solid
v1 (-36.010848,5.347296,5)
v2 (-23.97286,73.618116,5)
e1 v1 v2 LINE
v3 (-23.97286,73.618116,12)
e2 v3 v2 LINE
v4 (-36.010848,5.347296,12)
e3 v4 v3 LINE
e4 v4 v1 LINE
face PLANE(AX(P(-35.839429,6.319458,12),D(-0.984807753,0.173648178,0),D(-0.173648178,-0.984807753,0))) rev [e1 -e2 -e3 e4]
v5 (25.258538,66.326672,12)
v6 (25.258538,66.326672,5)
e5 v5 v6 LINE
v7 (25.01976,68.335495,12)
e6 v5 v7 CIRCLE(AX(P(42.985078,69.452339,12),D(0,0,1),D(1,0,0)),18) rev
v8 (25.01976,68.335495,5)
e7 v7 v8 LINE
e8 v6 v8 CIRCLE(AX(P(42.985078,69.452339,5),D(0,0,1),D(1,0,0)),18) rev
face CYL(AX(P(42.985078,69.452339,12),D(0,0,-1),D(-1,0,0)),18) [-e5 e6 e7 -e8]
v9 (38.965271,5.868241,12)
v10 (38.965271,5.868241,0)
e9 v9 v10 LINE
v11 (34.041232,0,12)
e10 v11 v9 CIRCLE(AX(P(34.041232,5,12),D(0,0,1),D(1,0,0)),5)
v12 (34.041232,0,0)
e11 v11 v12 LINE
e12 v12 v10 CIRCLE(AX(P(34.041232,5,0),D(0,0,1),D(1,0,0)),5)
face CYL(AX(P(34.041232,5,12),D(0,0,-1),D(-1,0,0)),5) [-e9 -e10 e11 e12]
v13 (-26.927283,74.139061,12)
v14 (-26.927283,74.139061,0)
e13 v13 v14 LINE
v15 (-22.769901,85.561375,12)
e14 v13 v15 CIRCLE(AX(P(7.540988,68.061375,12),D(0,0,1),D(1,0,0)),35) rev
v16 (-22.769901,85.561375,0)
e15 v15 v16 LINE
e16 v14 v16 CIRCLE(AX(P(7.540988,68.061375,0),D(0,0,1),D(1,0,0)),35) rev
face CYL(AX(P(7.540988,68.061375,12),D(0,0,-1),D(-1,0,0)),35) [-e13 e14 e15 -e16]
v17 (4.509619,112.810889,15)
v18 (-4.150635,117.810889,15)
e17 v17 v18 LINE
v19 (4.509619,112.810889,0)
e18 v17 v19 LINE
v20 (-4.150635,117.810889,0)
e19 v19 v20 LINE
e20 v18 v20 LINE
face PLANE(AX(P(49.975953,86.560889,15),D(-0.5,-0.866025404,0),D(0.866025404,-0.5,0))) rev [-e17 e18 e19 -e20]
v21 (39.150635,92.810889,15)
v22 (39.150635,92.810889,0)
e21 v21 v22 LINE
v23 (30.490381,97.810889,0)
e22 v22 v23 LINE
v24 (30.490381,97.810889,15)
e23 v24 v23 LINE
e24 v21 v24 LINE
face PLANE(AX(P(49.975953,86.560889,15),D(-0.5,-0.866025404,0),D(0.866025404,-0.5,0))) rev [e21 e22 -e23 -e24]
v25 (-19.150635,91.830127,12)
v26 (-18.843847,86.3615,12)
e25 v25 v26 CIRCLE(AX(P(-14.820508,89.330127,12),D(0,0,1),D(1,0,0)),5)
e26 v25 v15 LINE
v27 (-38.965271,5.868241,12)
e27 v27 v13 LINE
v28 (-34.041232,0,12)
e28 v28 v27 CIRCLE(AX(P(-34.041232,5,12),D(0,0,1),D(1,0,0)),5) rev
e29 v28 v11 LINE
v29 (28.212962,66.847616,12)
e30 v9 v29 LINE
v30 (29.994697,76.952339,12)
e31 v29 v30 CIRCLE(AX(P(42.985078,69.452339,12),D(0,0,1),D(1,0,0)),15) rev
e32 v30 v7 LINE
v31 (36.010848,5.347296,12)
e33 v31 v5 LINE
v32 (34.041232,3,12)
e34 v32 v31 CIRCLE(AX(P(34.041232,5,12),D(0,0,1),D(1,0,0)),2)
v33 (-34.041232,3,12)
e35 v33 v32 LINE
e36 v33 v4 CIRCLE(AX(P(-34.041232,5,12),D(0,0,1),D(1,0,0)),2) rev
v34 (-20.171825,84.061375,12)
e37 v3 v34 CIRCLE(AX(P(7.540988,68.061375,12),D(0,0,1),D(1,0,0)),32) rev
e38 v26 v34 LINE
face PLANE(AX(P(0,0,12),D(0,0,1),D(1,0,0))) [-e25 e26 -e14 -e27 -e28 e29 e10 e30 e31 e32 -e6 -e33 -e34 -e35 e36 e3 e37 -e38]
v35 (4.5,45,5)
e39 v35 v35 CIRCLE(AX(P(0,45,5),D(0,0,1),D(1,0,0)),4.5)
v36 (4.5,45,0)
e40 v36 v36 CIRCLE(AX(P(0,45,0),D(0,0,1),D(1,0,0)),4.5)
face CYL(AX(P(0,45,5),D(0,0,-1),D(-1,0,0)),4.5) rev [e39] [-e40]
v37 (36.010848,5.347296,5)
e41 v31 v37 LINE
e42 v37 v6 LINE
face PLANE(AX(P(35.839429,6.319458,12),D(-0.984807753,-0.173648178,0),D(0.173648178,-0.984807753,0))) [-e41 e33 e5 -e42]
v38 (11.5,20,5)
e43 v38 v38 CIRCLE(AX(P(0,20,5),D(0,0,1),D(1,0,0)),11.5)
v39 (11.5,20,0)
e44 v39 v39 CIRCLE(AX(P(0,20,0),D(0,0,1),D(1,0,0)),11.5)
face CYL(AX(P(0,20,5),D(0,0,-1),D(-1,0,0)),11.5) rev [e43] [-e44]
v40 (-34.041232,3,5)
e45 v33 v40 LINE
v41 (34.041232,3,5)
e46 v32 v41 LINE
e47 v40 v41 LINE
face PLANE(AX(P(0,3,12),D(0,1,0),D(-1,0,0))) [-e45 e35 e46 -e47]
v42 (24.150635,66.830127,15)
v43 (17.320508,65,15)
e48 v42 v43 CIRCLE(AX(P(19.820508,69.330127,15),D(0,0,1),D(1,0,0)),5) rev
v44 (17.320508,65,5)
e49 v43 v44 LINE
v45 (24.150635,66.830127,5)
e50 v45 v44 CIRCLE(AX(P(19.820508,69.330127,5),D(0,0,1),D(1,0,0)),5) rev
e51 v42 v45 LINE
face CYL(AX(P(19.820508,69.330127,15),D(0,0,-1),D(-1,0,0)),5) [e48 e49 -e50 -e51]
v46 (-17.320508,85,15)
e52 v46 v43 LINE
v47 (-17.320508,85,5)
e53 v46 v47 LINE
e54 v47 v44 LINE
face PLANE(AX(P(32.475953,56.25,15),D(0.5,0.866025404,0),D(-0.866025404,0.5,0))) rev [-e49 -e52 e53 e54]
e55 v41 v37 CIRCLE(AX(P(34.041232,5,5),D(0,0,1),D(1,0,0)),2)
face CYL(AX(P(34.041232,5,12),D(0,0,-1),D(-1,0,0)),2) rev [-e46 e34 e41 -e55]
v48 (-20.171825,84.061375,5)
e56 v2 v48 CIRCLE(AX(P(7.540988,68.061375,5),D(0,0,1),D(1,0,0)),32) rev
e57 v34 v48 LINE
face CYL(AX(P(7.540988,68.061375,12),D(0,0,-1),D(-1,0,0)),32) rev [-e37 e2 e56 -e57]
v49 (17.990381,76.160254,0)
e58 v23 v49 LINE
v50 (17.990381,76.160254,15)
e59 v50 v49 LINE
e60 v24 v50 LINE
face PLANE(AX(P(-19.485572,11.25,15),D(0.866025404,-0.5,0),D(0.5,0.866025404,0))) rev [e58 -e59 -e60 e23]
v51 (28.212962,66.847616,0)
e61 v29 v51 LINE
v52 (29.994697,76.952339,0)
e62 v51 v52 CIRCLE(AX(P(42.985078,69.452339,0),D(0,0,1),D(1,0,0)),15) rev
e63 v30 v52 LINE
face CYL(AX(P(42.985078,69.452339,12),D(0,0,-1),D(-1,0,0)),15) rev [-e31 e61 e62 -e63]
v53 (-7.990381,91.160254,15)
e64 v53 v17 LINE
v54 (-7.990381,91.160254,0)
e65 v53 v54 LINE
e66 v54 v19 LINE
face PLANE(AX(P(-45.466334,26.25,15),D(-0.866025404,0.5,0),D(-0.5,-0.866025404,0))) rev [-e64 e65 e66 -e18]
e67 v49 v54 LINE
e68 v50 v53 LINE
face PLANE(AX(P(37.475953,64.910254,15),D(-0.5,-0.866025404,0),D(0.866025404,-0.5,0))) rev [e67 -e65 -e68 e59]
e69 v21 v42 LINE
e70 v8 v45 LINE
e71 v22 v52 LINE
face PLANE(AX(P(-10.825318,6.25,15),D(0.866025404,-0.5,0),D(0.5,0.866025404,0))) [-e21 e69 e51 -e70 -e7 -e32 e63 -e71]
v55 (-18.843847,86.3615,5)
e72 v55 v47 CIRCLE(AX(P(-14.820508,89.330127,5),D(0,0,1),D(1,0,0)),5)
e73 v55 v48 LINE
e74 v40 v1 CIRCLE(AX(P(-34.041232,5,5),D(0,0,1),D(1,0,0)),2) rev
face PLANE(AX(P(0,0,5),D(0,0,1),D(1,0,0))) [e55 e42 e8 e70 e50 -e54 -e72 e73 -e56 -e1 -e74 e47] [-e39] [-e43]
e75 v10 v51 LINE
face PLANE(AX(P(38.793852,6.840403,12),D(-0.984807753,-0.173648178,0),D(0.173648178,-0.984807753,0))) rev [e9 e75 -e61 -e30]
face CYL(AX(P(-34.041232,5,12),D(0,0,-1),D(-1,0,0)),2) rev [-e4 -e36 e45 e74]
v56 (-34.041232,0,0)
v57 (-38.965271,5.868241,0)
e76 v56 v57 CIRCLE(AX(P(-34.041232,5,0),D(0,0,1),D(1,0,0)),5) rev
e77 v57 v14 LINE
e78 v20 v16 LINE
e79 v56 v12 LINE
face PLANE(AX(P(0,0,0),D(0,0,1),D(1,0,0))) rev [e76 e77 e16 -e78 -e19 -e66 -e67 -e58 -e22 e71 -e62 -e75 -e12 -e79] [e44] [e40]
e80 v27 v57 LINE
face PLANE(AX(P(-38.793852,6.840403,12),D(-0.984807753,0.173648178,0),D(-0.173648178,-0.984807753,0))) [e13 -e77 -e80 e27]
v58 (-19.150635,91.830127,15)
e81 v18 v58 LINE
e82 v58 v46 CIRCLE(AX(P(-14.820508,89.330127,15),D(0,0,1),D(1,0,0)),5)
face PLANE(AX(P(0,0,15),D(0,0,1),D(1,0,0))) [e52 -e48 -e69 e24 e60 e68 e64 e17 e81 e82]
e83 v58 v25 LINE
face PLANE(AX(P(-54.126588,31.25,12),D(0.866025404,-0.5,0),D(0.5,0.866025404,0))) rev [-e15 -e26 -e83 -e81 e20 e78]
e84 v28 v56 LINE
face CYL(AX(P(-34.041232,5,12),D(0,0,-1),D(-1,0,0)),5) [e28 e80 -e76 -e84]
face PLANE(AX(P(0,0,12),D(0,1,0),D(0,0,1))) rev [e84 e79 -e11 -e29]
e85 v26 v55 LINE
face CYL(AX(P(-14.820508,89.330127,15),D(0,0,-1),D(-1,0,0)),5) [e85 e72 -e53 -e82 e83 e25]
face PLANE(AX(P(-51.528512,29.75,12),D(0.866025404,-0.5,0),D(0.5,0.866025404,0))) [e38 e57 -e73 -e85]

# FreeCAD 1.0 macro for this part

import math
import FreeCAD as App
import Part
import Sketcher
Q = App.Units.Quantity

doc = App.newDocument("Part")
body = doc.addObject("PartDesign::Body", "Body")

# Sketch on XY plane
sketch1 = doc.addObject("Sketcher::SketchObject", "Sketch")
body.addObject(sketch1)
sketch1.AttachmentSupport = (doc.XY_Plane, [""])
sketch1.MapMode = "FlatFace"
sketch1.addGeometry([
    Part.ArcOfCircle(Part.Circle(App.Vector(-34.041232, 5, 0), App.Vector(0, 0, 1), 5), math.radians(170), math.radians(270)),  # 0
    Part.LineSegment(App.Vector(-34.041232, 0, 0), App.Vector(34.041232, 0, 0)),  # 1
    Part.ArcOfCircle(Part.Circle(App.Vector(34.041232, 5, 0), App.Vector(0, 0, 1), 5), math.radians(-90), math.radians(10)),  # 2
    Part.LineSegment(App.Vector(38.965271, 5.868241, 0), App.Vector(28.212962, 66.847616, 0)),  # 3
    Part.ArcOfCircle(Part.Circle(App.Vector(42.985078, 69.452339, 0), App.Vector(0, 0, 1), 15), math.radians(150), math.radians(190)),  # 4
    Part.LineSegment(App.Vector(29.994697, 76.952339, 0), App.Vector(25.01976, 68.335495, 0)),  # 5
    Part.ArcOfCircle(Part.Circle(App.Vector(42.985078, 69.452339, 0), App.Vector(0, 0, 1), 18), math.radians(-176.44269), math.radians(-170)),  # 6
    Part.LineSegment(App.Vector(25.258538, 66.326672, 0), App.Vector(36.010848, 5.347296, 0)),  # 7
    Part.ArcOfCircle(Part.Circle(App.Vector(34.041232, 5, 0), App.Vector(0, 0, 1), 2), math.radians(-90), math.radians(10)),  # 8
    Part.LineSegment(App.Vector(34.041232, 3, 0), App.Vector(-34.041232, 3, 0)),  # 9
    Part.ArcOfCircle(Part.Circle(App.Vector(-34.041232, 5, 0), App.Vector(0, 0, 1), 2), math.radians(170), math.radians(270)),  # 10
    Part.LineSegment(App.Vector(-36.010848, 5.347296, 0), App.Vector(-23.97286, 73.618116, 0)),  # 11
    Part.ArcOfCircle(Part.Circle(App.Vector(7.540988, 68.061374, 0), App.Vector(0, 0, 1), 32), math.radians(150), math.radians(170)),  # 12
    Part.LineSegment(App.Vector(-20.171825, 84.061375, 0), App.Vector(-18.843847, 86.3615, 0)),  # 13
    Part.ArcOfCircle(Part.Circle(App.Vector(-14.820508, 89.330127, 0), App.Vector(0, 0, 1), 5), math.radians(150), math.radians(216.421822)),  # 14
    Part.LineSegment(App.Vector(-19.150635, 91.830127, 0), App.Vector(-22.769901, 85.561375, 0)),  # 15
    Part.ArcOfCircle(Part.Circle(App.Vector(7.540988, 68.061375, 0), App.Vector(0, 0, 1), 35), math.radians(150), math.radians(170)),  # 16
    Part.LineSegment(App.Vector(-26.927283, 74.139061, 0), App.Vector(-38.965271, 5.868241, 0)),  # 17
], False)
sketch1.addConstraint([
    Sketcher.Constraint("Tangent", 0, 2, 1, 1),
    Sketcher.Constraint("Tangent", 1, 2, 2, 1),
    Sketcher.Constraint("Tangent", 2, 2, 3, 1),
    Sketcher.Constraint("Tangent", 3, 2, 4, 2),
    Sketcher.Constraint("Tangent", 4, 1, 5, 1),
    Sketcher.Constraint("Coincident", 5, 2, 6, 1),
    Sketcher.Constraint("Tangent", 6, 2, 7, 1),
    Sketcher.Constraint("Tangent", 7, 2, 8, 2),
    Sketcher.Constraint("Tangent", 8, 1, 9, 1),
    Sketcher.Constraint("Tangent", 9, 2, 10, 2),
    Sketcher.Constraint("Tangent", 10, 1, 11, 1),
    Sketcher.Constraint("Tangent", 11, 2, 12, 2),
    Sketcher.Constraint("Tangent", 12, 1, 13, 1),
    Sketcher.Constraint("Coincident", 13, 2, 14, 2),
    Sketcher.Constraint("Tangent", 14, 1, 15, 1),
    Sketcher.Constraint("Tangent", 15, 2, 16, 1),
    Sketcher.Constraint("Tangent", 16, 2, 17, 1),
    Sketcher.Constraint("Tangent", 17, 2, 0, 1),
    Sketcher.Constraint("Horizontal", 1),
    Sketcher.Constraint("Horizontal", 9),
    Sketcher.Constraint("Coincident", 6, 3, 4, 3),
    Sketcher.Constraint("Coincident", 8, 3, 2, 3),
    Sketcher.Constraint("Coincident", 10, 3, 0, 3),
    Sketcher.Constraint("Coincident", 16, 3, 12, 3),
    Sketcher.Constraint("Equal", 0, 2),
    Sketcher.Constraint("Equal", 2, 14),
    Sketcher.Constraint("Symmetric", 0, 2, 1, 2, -1, 1),
    Sketcher.Constraint("Parallel", 3, 7),
    Sketcher.Constraint("Parallel", 5, 13),
    Sketcher.Constraint("Parallel", 13, 15),
    Sketcher.Constraint("Parallel", 11, 17),
    Sketcher.Constraint("Horizontal", 7, 2, 10, 1),
    Sketcher.Constraint("Radius", 0, Q("5 mm")),
    Sketcher.Constraint("Radius", 4, Q("15 mm")),
    Sketcher.Constraint("Radius", 6, Q("18 mm")),
    Sketcher.Constraint("Radius", 12, Q("32 mm")),
    Sketcher.Constraint("Angle", 3, Q("100 deg")),
    Sketcher.Constraint("Angle", 5, Q("-120 deg")),
    Sketcher.Constraint("DistanceY", -1, 1, 13, 2, Q("86.3615 mm")),
    Sketcher.Constraint("DistanceX", 15, 2, -1, 1, Q("22.769901 mm")),
    Sketcher.Constraint("DistanceY", 2, 2, 6, 3, Q("63.584098 mm")),
    Sketcher.Constraint("DistanceX", 11, 2, 6, 2, Q("49.231398 mm")),
])
pad1 = doc.addObject("PartDesign::Pad", "Pad")
body.addObject(pad1)
pad1.Profile = sketch1
pad1.Length = 12

# Sketch on XY plane
sketch2 = doc.addObject("Sketcher::SketchObject", "Sketch001")
body.addObject(sketch2)
sketch2.AttachmentSupport = (doc.XY_Plane, [""])
sketch2.MapMode = "FlatFace"
sketch2.addGeometry([
    Part.ArcOfCircle(Part.Circle(App.Vector(42.985078, 69.452339, 0), App.Vector(0, 0, 1), 18), math.radians(-176.44269), math.radians(-170)),  # 0
    Part.LineSegment(App.Vector(25.01976, 68.335495, 0), App.Vector(24.150635, 66.830127, 0)),  # 1
    Part.ArcOfCircle(Part.Circle(App.Vector(19.820508, 69.330127, 0), App.Vector(0, 0, 1), 5), math.radians(-120), math.radians(-30)),  # 2
    Part.LineSegment(App.Vector(17.320508, 65, 0), App.Vector(-17.320508, 85, 0)),  # 3
    Part.ArcOfCircle(Part.Circle(App.Vector(-14.820508, 89.330127, 0), App.Vector(0, 0, 1), 5), math.radians(-143.578178), math.radians(-120)),  # 4
    Part.LineSegment(App.Vector(-18.843847, 86.3615, 0), App.Vector(-20.171825, 84.061375, 0)),  # 5
    Part.ArcOfCircle(Part.Circle(App.Vector(7.540988, 68.061374, 0), App.Vector(0, 0, 1), 32), math.radians(150), math.radians(170)),  # 6
    Part.LineSegment(App.Vector(-23.97286, 73.618116, 0), App.Vector(-36.010848, 5.347296, 0)),  # 7
    Part.ArcOfCircle(Part.Circle(App.Vector(-34.041232, 5, 0), App.Vector(0, 0, 1), 2), math.radians(170), math.radians(270)),  # 8
    Part.LineSegment(App.Vector(-34.041232, 3, 0), App.Vector(34.041232, 3, 0)),  # 9
    Part.ArcOfCircle(Part.Circle(App.Vector(34.041232, 5, 0), App.Vector(0, 0, 1), 2), math.radians(-90), math.radians(10)),  # 10
    Part.LineSegment(App.Vector(36.010848, 5.347296, 0), App.Vector(25.258538, 66.326672, 0)),  # 11
    Part.Circle(App.Vector(0, 20, 0), App.Vector(0, 0, 1), 11.5),  # 12
    Part.Circle(App.Vector(0, 45, 0), App.Vector(0, 0, 1), 4.5),  # 13
], False)
sketch2.addConstraint([
    Sketcher.Constraint("Coincident", 0, 1, 1, 1),
    Sketcher.Constraint("Tangent", 1, 2, 2, 2),
    Sketcher.Constraint("Tangent", 2, 1, 3, 1),
    Sketcher.Constraint("Tangent", 3, 2, 4, 2),
    Sketcher.Constraint("Coincident", 4, 1, 5, 1),
    Sketcher.Constraint("Tangent", 5, 2, 6, 1),
    Sketcher.Constraint("Tangent", 6, 2, 7, 1),
    Sketcher.Constraint("Tangent", 7, 2, 8, 1),
    Sketcher.Constraint("Tangent", 8, 2, 9, 1),
    Sketcher.Constraint("Tangent", 9, 2, 10, 1),
    Sketcher.Constraint("Tangent", 10, 2, 11, 1),
    Sketcher.Constraint("Tangent", 11, 2, 0, 2),
    Sketcher.Constraint("Horizontal", 9),
    Sketcher.Constraint("Equal", 2, 4),
    Sketcher.Constraint("Equal", 8, 10),
    Sketcher.Constraint("Symmetric", 7, 2, 10, 2, -2),
    Sketcher.Constraint("PointOnObject", 12, 3, -2),
    Sketcher.Constraint("PointOnObject", 13, 3, -2),
    Sketcher.Constraint("Perpendicular", 1, 3),
    Sketcher.Constraint("Perpendicular", 3, 5),
    Sketcher.Constraint("Diameter", 12, Q("23 mm")),
    Sketcher.Constraint("Diameter", 13, Q("9 mm")),
    Sketcher.Constraint("Radius", 0, Q("18 mm")),
    Sketcher.Constraint("Radius", 2, Q("5 mm")),
    Sketcher.Constraint("Radius", 6, Q("32 mm")),
    Sketcher.Constraint("Radius", 8, Q("2 mm")),
    Sketcher.Constraint("Angle", 1, Q("-120 deg")),
    Sketcher.Constraint("Angle", 7, Q("-100 deg")),
    Sketcher.Constraint("Distance", 3, Q("40 mm")),
    Sketcher.Constraint("DistanceY", -1, 1, 8, 3, Q("5 mm")),
    Sketcher.Constraint("DistanceY", -1, 1, 12, 3, Q("20 mm")),
    Sketcher.Constraint("DistanceY", -1, 1, 13, 3, Q("45 mm")),
    Sketcher.Constraint("DistanceY", -1, 1, 2, 1, Q("65 mm")),
    Sketcher.Constraint("DistanceY", -1, 1, 4, 1, Q("86.3615 mm")),
    Sketcher.Constraint("Distance", 1, Q("1.738249 mm")),
    Sketcher.Constraint("Distance", 11, Q("61.920081 mm")),
    Sketcher.Constraint("DistanceX", 9, 1, 9, 2, Q("68.082464 mm")),
])
pad2 = doc.addObject("PartDesign::Pad", "Pad001")
body.addObject(pad2)
pad2.Profile = sketch2
pad2.Length = 5

# Sketch on XY plane
sketch3 = doc.addObject("Sketcher::SketchObject", "Sketch002")
body.addObject(sketch3)
sketch3.AttachmentSupport = (doc.XY_Plane, [""])
sketch3.MapMode = "FlatFace"
sketch3.addGeometry([
    Part.LineSegment(App.Vector(25.01976, 68.335495, 0), App.Vector(29.994697, 76.952339, 0)),  # 0
    Part.LineSegment(App.Vector(29.994697, 76.952339, 0), App.Vector(39.150635, 92.810889, 0)),  # 1
    Part.LineSegment(App.Vector(39.150635, 92.810889, 0), App.Vector(30.490381, 97.810889, 0)),  # 2
    Part.LineSegment(App.Vector(30.490381, 97.810889, 0), App.Vector(17.990381, 76.160254, 0)),  # 3
    Part.LineSegment(App.Vector(17.990381, 76.160254, 0), App.Vector(-7.990381, 91.160254, 0)),  # 4
    Part.LineSegment(App.Vector(-7.990381, 91.160254, 0), App.Vector(4.509619, 112.810889, 0)),  # 5
    Part.LineSegment(App.Vector(4.509619, 112.810889, 0), App.Vector(-4.150635, 117.810889, 0)),  # 6
    Part.LineSegment(App.Vector(-4.150635, 117.810889, 0), App.Vector(-19.150635, 91.830127, 0)),  # 7
    Part.ArcOfCircle(Part.Circle(App.Vector(-14.820508, 89.330127, 0), App.Vector(0, 0, 1), 5), math.radians(150), math.radians(216.421822)),  # 8
    Part.ArcOfCircle(Part.Circle(App.Vector(-14.820508, 89.330127, 0), App.Vector(0, 0, 1), 5), math.radians(-143.578178), math.radians(-120)),  # 9
    Part.LineSegment(App.Vector(-17.320508, 85, 0), App.Vector(17.320508, 65, 0)),  # 10
    Part.ArcOfCircle(Part.Circle(App.Vector(19.820508, 69.330127, 0), App.Vector(0, 0, 1), 5), math.radians(-120), math.radians(-30)),  # 11
    Part.LineSegment(App.Vector(24.150635, 66.830127, 0), App.Vector(25.01976, 68.335495, 0)),  # 12
], False)
sketch3.addConstraint([
    Sketcher.Constraint("Coincident", 0, 2, 1, 1),
    Sketcher.Constraint("Coincident", 1, 2, 2, 1),
    Sketcher.Constraint("Coincident", 2, 2, 3, 1),
    Sketcher.Constraint("Coincident", 3, 2, 4, 1),
    Sketcher.Constraint("Coincident", 4, 2, 5, 1),
    Sketcher.Constraint("Coincident", 5, 2, 6, 1),
    Sketcher.Constraint("Coincident", 6, 2, 7, 1),
    Sketcher.Constraint("Tangent", 7, 2, 8, 1),
    Sketcher.Constraint("Tangent", 8, 2, 9, 1),
    Sketcher.Constraint("Tangent", 9, 2, 10, 1),
    Sketcher.Constraint("Tangent", 10, 2, 11, 1),
    Sketcher.Constraint("Tangent", 11, 2, 12, 1),
    Sketcher.Constraint("Coincident", 12, 2, 0, 1),
    Sketcher.Constraint("Equal", 8, 9),
    Sketcher.Constraint("Equal", 9, 11),
    Sketcher.Constraint("Parallel", 0, 1),
    Sketcher.Constraint("Perpendicular", 1, 2),
    Sketcher.Constraint("Perpendicular", 2, 3),
    Sketcher.Constraint("Perpendicular", 3, 4),
    Sketcher.Constraint("Perpendicular", 4, 5),
    Sketcher.Constraint("Perpendicular", 5, 6),
    Sketcher.Constraint("Perpendicular", 6, 7),
    Sketcher.Constraint("Perpendicular", 7, 10),
    Sketcher.Constraint("Perpendicular", 10, 12),
    Sketcher.Constraint("Equal", 3, 5),
    Sketcher.Constraint("Equal", 2, 6),
    Sketcher.Constraint("Equal", 4, 7),
    Sketcher.Constraint("Radius", 8, Q("5 mm")),
    Sketcher.Constraint("Angle", 0, Q("60 deg")),
    Sketcher.Constraint("Distance", 2, Q("10 mm")),
    Sketcher.Constraint("Distance", 3, Q("25 mm")),
    Sketcher.Constraint("Distance", 4, Q("30 mm")),
    Sketcher.Constraint("DistanceY", -1, 1, 9, 2, Q("85 mm")),
    Sketcher.Constraint("DistanceY", -1, 1, 8, 2, Q("86.3615 mm")),
    Sketcher.Constraint("Distance", 12, Q("1.738249 mm")),
    Sketcher.Constraint("DistanceX", 8, 3, -1, 1, Q("14.820508 mm")),
    Sketcher.Constraint("DistanceY", -1, 1, 0, 2, Q("76.952339 mm")),
])
pad3 = doc.addObject("PartDesign::Pad", "Pad002")
body.addObject(pad3)
pad3.Profile = sketch3
pad3.Length = 15

doc.recompute()
